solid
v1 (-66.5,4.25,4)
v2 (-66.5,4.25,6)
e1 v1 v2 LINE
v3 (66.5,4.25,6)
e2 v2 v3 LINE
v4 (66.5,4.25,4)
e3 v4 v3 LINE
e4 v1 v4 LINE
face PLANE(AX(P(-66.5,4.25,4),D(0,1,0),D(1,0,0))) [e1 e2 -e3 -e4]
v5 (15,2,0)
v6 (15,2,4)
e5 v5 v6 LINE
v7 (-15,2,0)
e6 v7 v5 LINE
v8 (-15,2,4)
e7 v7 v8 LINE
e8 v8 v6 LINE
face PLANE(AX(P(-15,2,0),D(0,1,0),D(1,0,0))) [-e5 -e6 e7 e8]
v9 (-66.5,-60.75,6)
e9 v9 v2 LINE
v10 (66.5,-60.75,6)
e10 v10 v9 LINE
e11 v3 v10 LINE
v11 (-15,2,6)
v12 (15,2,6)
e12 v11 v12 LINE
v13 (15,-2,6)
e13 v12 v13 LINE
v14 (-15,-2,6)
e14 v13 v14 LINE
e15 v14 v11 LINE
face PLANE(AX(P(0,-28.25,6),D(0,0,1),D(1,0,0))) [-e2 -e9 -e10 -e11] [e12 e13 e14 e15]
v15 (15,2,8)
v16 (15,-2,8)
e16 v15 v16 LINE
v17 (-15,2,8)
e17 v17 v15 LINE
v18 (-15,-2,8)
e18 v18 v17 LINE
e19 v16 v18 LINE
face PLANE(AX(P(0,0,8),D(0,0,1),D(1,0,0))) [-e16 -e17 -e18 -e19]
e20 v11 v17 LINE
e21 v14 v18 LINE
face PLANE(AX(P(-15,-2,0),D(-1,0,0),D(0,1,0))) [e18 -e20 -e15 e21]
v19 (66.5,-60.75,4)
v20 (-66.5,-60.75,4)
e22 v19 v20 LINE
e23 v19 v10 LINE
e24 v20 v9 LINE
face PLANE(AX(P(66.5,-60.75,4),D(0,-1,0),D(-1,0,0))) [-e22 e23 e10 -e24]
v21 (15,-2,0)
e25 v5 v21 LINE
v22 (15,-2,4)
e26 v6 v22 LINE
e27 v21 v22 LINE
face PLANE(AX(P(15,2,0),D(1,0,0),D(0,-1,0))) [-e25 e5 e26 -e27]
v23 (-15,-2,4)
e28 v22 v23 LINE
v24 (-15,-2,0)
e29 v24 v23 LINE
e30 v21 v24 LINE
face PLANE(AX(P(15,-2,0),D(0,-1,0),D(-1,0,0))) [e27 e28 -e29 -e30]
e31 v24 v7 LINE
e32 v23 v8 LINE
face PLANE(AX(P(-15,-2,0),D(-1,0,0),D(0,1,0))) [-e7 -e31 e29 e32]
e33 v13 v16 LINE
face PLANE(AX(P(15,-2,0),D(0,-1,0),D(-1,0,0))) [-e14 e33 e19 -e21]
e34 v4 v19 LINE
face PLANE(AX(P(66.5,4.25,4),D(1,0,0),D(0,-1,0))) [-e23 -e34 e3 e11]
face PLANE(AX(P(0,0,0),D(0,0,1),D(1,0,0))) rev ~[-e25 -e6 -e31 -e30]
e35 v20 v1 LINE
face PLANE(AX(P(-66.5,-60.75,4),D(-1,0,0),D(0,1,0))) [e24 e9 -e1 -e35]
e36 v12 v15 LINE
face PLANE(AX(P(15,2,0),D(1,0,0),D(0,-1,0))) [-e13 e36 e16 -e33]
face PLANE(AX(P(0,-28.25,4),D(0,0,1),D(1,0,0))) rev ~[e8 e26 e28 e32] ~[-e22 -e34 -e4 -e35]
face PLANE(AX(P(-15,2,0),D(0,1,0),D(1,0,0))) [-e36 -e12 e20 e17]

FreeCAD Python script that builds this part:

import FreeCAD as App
import Part
import Sketcher

doc = App.newDocument("Part")
body = doc.addObject("PartDesign::Body", "Body")

# Sketch on XY plane
sketch1 = body.newObject("Sketcher::SketchObject", "Sketch")
sketch1.AttachmentSupport = (doc.getObject("XY_Plane"), [""])
sketch1.MapMode = "FlatFace"
sketch1.addGeometry(Part.LineSegment(App.Vector(15, 2, 0), App.Vector(-15, 2, 0)), False)
sketch1.addGeometry(Part.LineSegment(App.Vector(-15, 2, 0), App.Vector(-15, -2, 0)), False)
sketch1.addGeometry(Part.LineSegment(App.Vector(-15, -2, 0), App.Vector(15, -2, 0)), False)
sketch1.addGeometry(Part.LineSegment(App.Vector(15, -2, 0), App.Vector(15, 2, 0)), False)
sketch1.addConstraint(Sketcher.Constraint("Coincident", 0, 2, 1, 1))
sketch1.addConstraint(Sketcher.Constraint("Coincident", 1, 2, 2, 1))
sketch1.addConstraint(Sketcher.Constraint("Coincident", 2, 2, 3, 1))
sketch1.addConstraint(Sketcher.Constraint("Coincident", 3, 2, 0, 1))
sketch1.addConstraint(Sketcher.Constraint("Horizontal", 0))
sketch1.addConstraint(Sketcher.Constraint("Vertical", 1))
sketch1.addConstraint(Sketcher.Constraint("Horizontal", 2))
sketch1.addConstraint(Sketcher.Constraint("Vertical", 3))
sketch1.addConstraint(Sketcher.Constraint("Symmetric", 0, 2, 2, 2, -1, 1))
sketch1.addConstraint(Sketcher.Constraint("DistanceX", 0, 2, 0, 1, 30.0))
sketch1.addConstraint(Sketcher.Constraint("DistanceY", 1, 2, 1, 1, 4.0))
pad1 = body.newObject("PartDesign::Pad", "Pad")
pad1.Profile = sketch1
pad1.Length = 8

# Sketch on XY plane
sketch2 = body.newObject("Sketcher::SketchObject", "Sketch001")
sketch2.AttachmentSupport = (doc.getObject("XY_Plane"), [""])
sketch2.MapMode = "FlatFace"
sketch2.AttachmentOffset = App.Placement(App.Vector(0, 0, 4), App.Rotation())
sketch2.addGeometry(Part.LineSegment(App.Vector(66, 4, 0), App.Vector(-66, 4, 0)), False)
sketch2.addGeometry(Part.LineSegment(App.Vector(-66, 4, 0), App.Vector(-66, -61, 0)), False)
sketch2.addGeometry(Part.LineSegment(App.Vector(-66, -61, 0), App.Vector(66, -61, 0)), False)
sketch2.addGeometry(Part.LineSegment(App.Vector(66, -61, 0), App.Vector(66, 4, 0)), False)
sketch2.addConstraint(Sketcher.Constraint("Coincident", 0, 2, 1, 1))
sketch2.addConstraint(Sketcher.Constraint("Coincident", 1, 2, 2, 1))
sketch2.addConstraint(Sketcher.Constraint("Coincident", 2, 2, 3, 1))
sketch2.addConstraint(Sketcher.Constraint("Coincident", 3, 2, 0, 1))
sketch2.addConstraint(Sketcher.Constraint("Horizontal", 0))
sketch2.addConstraint(Sketcher.Constraint("Vertical", 1))
sketch2.addConstraint(Sketcher.Constraint("Horizontal", 2))
sketch2.addConstraint(Sketcher.Constraint("Vertical", 3))
sketch2.addConstraint(Sketcher.Constraint("DistanceX", 0, 2, 0, 1, 133.0))
sketch2.addConstraint(Sketcher.Constraint("DistanceY", 1, 2, 1, 1, 65.0))
sketch2.addConstraint(Sketcher.Constraint("DistanceX", 0, 2, -1, 1, 66.5))
sketch2.addConstraint(Sketcher.Constraint("DistanceY", -1, 1, 0, 2, 4.25))
pad2 = body.newObject("PartDesign::Pad", "Pad001")
pad2.Profile = sketch2
pad2.Length = 2

doc.recompute()
